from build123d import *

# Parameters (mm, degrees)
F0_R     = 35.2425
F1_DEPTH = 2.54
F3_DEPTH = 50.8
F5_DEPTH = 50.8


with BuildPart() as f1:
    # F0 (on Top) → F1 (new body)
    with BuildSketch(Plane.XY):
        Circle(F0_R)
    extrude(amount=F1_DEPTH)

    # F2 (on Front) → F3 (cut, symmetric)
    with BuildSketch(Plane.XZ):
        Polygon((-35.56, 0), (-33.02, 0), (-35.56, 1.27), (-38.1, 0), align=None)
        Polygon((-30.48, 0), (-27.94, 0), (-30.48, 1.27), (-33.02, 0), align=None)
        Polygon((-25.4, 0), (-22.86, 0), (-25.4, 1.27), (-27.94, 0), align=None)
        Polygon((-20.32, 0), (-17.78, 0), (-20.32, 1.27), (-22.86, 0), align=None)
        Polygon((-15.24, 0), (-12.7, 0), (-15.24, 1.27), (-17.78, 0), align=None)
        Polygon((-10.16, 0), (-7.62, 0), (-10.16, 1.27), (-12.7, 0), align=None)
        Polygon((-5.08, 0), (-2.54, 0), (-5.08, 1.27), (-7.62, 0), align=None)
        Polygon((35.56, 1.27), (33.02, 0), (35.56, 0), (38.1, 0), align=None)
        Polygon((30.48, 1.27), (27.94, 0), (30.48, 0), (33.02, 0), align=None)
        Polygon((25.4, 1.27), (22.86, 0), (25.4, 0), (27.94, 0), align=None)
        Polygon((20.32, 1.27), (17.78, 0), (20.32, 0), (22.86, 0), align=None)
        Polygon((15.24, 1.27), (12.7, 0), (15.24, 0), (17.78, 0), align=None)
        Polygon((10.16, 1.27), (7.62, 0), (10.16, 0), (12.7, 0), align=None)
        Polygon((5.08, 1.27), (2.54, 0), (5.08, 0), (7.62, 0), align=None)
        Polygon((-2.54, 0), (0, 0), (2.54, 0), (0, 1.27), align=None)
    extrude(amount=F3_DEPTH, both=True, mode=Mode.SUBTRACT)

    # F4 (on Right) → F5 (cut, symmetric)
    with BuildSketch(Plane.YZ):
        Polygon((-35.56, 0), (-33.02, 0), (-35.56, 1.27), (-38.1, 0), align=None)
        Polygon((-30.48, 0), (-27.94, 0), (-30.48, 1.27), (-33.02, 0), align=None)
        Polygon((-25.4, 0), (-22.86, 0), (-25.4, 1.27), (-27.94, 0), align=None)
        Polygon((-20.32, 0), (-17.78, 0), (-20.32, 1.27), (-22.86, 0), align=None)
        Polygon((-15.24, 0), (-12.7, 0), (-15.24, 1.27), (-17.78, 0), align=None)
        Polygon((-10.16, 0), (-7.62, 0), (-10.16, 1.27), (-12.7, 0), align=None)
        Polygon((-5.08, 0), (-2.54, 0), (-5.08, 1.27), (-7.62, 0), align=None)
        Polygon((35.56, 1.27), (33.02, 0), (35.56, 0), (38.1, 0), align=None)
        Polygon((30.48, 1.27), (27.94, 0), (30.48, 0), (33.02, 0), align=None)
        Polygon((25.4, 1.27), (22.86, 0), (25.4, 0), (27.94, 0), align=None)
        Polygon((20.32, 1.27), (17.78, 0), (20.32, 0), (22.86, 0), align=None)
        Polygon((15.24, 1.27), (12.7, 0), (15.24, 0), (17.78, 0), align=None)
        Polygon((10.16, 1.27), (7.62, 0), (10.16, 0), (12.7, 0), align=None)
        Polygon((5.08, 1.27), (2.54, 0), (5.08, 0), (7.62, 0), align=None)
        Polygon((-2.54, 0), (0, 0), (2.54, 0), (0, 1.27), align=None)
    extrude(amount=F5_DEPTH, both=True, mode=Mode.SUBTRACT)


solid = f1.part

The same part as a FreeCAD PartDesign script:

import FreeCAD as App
import Part
import Sketcher
from FreeCAD import Vector
Q = App.Units.Quantity

doc = App.newDocument("Part")
body = doc.addObject("PartDesign::Body", "Body")

sketch1 = body.newObject("Sketcher::SketchObject", "Sketch")
sketch1.AttachmentSupport = (doc.getObject("XY_Plane"), [""])
sketch1.MapMode = "FlatFace"
sketch1.addGeometry(Part.Circle(Vector(0, 0, 0), Vector(0, 0, 1), 35.2425), False)
sketch1.addConstraint([
    Sketcher.Constraint("Coincident", 0, 3, -1, 1),
    Sketcher.Constraint("Diameter", 0, Q("2.775 in")),
])
pad1 = body.newObject("PartDesign::Pad", "Pad")
pad1.Profile = sketch1
pad1.Length = Q("0.1 in")

sketch2 = body.newObject("Sketcher::SketchObject", "Sketch001")
sketch2.AttachmentSupport = (doc.getObject("XZ_Plane"), [""])
sketch2.MapMode = "FlatFace"
sketch2.addGeometry([
    Part.LineSegment(Vector(-33.02, 0, 0), Vector(-35.56, 1.27, 0)),
    Part.LineSegment(Vector(-35.56, 1.27, 0), Vector(-38.1, 0, 0)),
    Part.LineSegment(Vector(-38.1, 0, 0), Vector(-33.02, 0, 0)),
    Part.LineSegment(Vector(-27.94, 0, 0), Vector(-30.48, 1.27, 0)),
    Part.LineSegment(Vector(-30.48, 1.27, 0), Vector(-33.02, 0, 0)),
    Part.LineSegment(Vector(-33.02, 0, 0), Vector(-27.94, 0, 0)),
    Part.LineSegment(Vector(-22.86, 0, 0), Vector(-25.4, 1.27, 0)),
    Part.LineSegment(Vector(-25.4, 1.27, 0), Vector(-27.94, 0, 0)),
    Part.LineSegment(Vector(-27.94, 0, 0), Vector(-22.86, 0, 0)),
    Part.LineSegment(Vector(-17.78, 0, 0), Vector(-20.32, 1.27, 0)),
    Part.LineSegment(Vector(-20.32, 1.27, 0), Vector(-22.86, 0, 0)),
    Part.LineSegment(Vector(-22.86, 0, 0), Vector(-17.78, 0, 0)),
    Part.LineSegment(Vector(-12.7, 0, 0), Vector(-15.24, 1.27, 0)),
    Part.LineSegment(Vector(-15.24, 1.27, 0), Vector(-17.78, 0, 0)),
    Part.LineSegment(Vector(-17.78, 0, 0), Vector(-12.7, 0, 0)),
    Part.LineSegment(Vector(-7.62, 0, 0), Vector(-10.16, 1.27, 0)),
    Part.LineSegment(Vector(-10.16, 1.27, 0), Vector(-12.7, 0, 0)),
    Part.LineSegment(Vector(-12.7, 0, 0), Vector(-7.62, 0, 0)),
    Part.LineSegment(Vector(-2.54, 0, 0), Vector(-5.08, 1.27, 0)),
    Part.LineSegment(Vector(-5.08, 1.27, 0), Vector(-7.62, 0, 0)),
    Part.LineSegment(Vector(-7.62, 0, 0), Vector(-2.54, 0, 0)),
    Part.LineSegment(Vector(35.56, 1.27, 0), Vector(33.02, 0, 0)),
    Part.LineSegment(Vector(33.02, 0, 0), Vector(38.1, 0, 0)),
    Part.LineSegment(Vector(38.1, 0, 0), Vector(35.56, 1.27, 0)),
    Part.LineSegment(Vector(30.48, 1.27, 0), Vector(27.94, 0, 0)),
    Part.LineSegment(Vector(27.94, 0, 0), Vector(33.02, 0, 0)),
    Part.LineSegment(Vector(33.02, 0, 0), Vector(30.48, 1.27, 0)),
    Part.LineSegment(Vector(25.4, 1.27, 0), Vector(22.86, 0, 0)),
    Part.LineSegment(Vector(22.86, 0, 0), Vector(27.94, 0, 0)),
    Part.LineSegment(Vector(27.94, 0, 0), Vector(25.4, 1.27, 0)),
    Part.LineSegment(Vector(20.32, 1.27, 0), Vector(17.78, 0, 0)),
    Part.LineSegment(Vector(17.78, 0, 0), Vector(22.86, 0, 0)),
    Part.LineSegment(Vector(22.86, 0, 0), Vector(20.32, 1.27, 0)),
    Part.LineSegment(Vector(15.24, 1.27, 0), Vector(12.7, 0, 0)),
    Part.LineSegment(Vector(12.7, 0, 0), Vector(17.78, 0, 0)),
    Part.LineSegment(Vector(17.78, 0, 0), Vector(15.24, 1.27, 0)),
    Part.LineSegment(Vector(10.16, 1.27, 0), Vector(7.62, 0, 0)),
    Part.LineSegment(Vector(7.62, 0, 0), Vector(12.7, 0, 0)),
    Part.LineSegment(Vector(12.7, 0, 0), Vector(10.16, 1.27, 0)),
    Part.LineSegment(Vector(5.08, 1.27, 0), Vector(2.54, 0, 0)),
    Part.LineSegment(Vector(2.54, 0, 0), Vector(7.62, 0, 0)),
    Part.LineSegment(Vector(7.62, 0, 0), Vector(5.08, 1.27, 0)),
    Part.LineSegment(Vector(-2.54, 0, 0), Vector(2.54, 0, 0)),
    Part.LineSegment(Vector(2.54, 0, 0), Vector(0, 1.27, 0)),
    Part.LineSegment(Vector(0, 1.27, 0), Vector(-2.54, 0, 0)),
], False)
sketch2.addConstraint([
    Sketcher.Constraint("Coincident", 0, 2, 1, 1),
    Sketcher.Constraint("Coincident", 1, 2, 2, 1),
    Sketcher.Constraint("Coincident", 2, 2, 0, 1),
    Sketcher.Constraint("Coincident", 3, 2, 4, 1),
    Sketcher.Constraint("Coincident", 4, 2, 5, 1),
    Sketcher.Constraint("Coincident", 5, 2, 3, 1),
    Sketcher.Constraint("Coincident", 6, 2, 7, 1),
    Sketcher.Constraint("Coincident", 7, 2, 8, 1),
    Sketcher.Constraint("Coincident", 8, 2, 6, 1),
    Sketcher.Constraint("Coincident", 9, 2, 10, 1),
    Sketcher.Constraint("Coincident", 10, 2, 11, 1),
    Sketcher.Constraint("Coincident", 11, 2, 9, 1),
    Sketcher.Constraint("Coincident", 12, 2, 13, 1),
    Sketcher.Constraint("Coincident", 13, 2, 14, 1),
    Sketcher.Constraint("Coincident", 14, 2, 12, 1),
    Sketcher.Constraint("Coincident", 15, 2, 16, 1),
    Sketcher.Constraint("Coincident", 16, 2, 17, 1),
    Sketcher.Constraint("Coincident", 17, 2, 15, 1),
    Sketcher.Constraint("Coincident", 18, 2, 19, 1),
    Sketcher.Constraint("Coincident", 19, 2, 20, 1),
    Sketcher.Constraint("Coincident", 20, 2, 18, 1),
    Sketcher.Constraint("Coincident", 21, 2, 22, 1),
    Sketcher.Constraint("Coincident", 22, 2, 23, 1),
    Sketcher.Constraint("Coincident", 23, 2, 21, 1),
    Sketcher.Constraint("Coincident", 24, 2, 25, 1),
    Sketcher.Constraint("Coincident", 25, 2, 26, 1),
    Sketcher.Constraint("Coincident", 26, 2, 24, 1),
    Sketcher.Constraint("Coincident", 27, 2, 28, 1),
    Sketcher.Constraint("Coincident", 28, 2, 29, 1),
    Sketcher.Constraint("Coincident", 29, 2, 27, 1),
    Sketcher.Constraint("Coincident", 30, 2, 31, 1),
    Sketcher.Constraint("Coincident", 31, 2, 32, 1),
    Sketcher.Constraint("Coincident", 32, 2, 30, 1),
    Sketcher.Constraint("Coincident", 33, 2, 34, 1),
    Sketcher.Constraint("Coincident", 34, 2, 35, 1),
    Sketcher.Constraint("Coincident", 35, 2, 33, 1),
    Sketcher.Constraint("Coincident", 36, 2, 37, 1),
    Sketcher.Constraint("Coincident", 37, 2, 38, 1),
    Sketcher.Constraint("Coincident", 38, 2, 36, 1),
    Sketcher.Constraint("Coincident", 39, 2, 40, 1),
    Sketcher.Constraint("Coincident", 40, 2, 41, 1),
    Sketcher.Constraint("Coincident", 41, 2, 39, 1),
    Sketcher.Constraint("Coincident", 42, 2, 43, 1),
    Sketcher.Constraint("Coincident", 43, 2, 44, 1),
    Sketcher.Constraint("Coincident", 44, 2, 42, 1),
    Sketcher.Constraint("Horizontal", 2),
    Sketcher.Constraint("Horizontal", 5),
    Sketcher.Constraint("Horizontal", 8),
    Sketcher.Constraint("Horizontal", 11),
    Sketcher.Constraint("Horizontal", 14),
    Sketcher.Constraint("Horizontal", 17),
    Sketcher.Constraint("Horizontal", 20),
    Sketcher.Constraint("Horizontal", 22),
    Sketcher.Constraint("Horizontal", 25),
    Sketcher.Constraint("Horizontal", 28),
    Sketcher.Constraint("Horizontal", 31),
    Sketcher.Constraint("Horizontal", 34),
    Sketcher.Constraint("Horizontal", 37),
    Sketcher.Constraint("Horizontal", 40),
    Sketcher.Constraint("Horizontal", 42),
    Sketcher.Constraint("Coincident", 4, 2, 2, 2),
    Sketcher.Constraint("Coincident", 7, 2, 5, 2),
    Sketcher.Constraint("Coincident", 10, 2, 8, 2),
    Sketcher.Constraint("Coincident", 13, 2, 11, 2),
    Sketcher.Constraint("Coincident", 16, 2, 14, 2),
    Sketcher.Constraint("Coincident", 19, 2, 17, 2),
    Sketcher.Constraint("Coincident", 25, 2, 21, 2),
    Sketcher.Constraint("Coincident", 28, 2, 24, 2),
    Sketcher.Constraint("Coincident", 31, 2, 27, 2),
    Sketcher.Constraint("Coincident", 34, 2, 30, 2),
    Sketcher.Constraint("Coincident", 37, 2, 33, 2),
    Sketcher.Constraint("Coincident", 40, 2, 36, 2),
    Sketcher.Constraint("Coincident", 42, 2, 39, 2),
    Sketcher.Constraint("Coincident", 44, 2, 20, 2),
    Sketcher.Constraint("Symmetric", 2, 2, 21, 2, -1, 1),
    Sketcher.Constraint("Symmetric", 0, 2, 23, 2, -2),
    Sketcher.Constraint("Symmetric", 3, 2, 26, 2, -2),
    Sketcher.Constraint("Symmetric", 6, 2, 29, 2, -2),
    Sketcher.Constraint("Symmetric", 9, 2, 32, 2, -2),
    Sketcher.Constraint("Symmetric", 12, 2, 35, 2, -2),
    Sketcher.Constraint("Symmetric", 15, 2, 38, 2, -2),
    Sketcher.Constraint("Symmetric", 18, 2, 41, 2, -2),
    Sketcher.Constraint("PointOnObject", 43, 2, -2),
    Sketcher.Constraint("Parallel", 0, 3),
    Sketcher.Constraint("Parallel", 1, 4),
    Sketcher.Constraint("Parallel", 3, 6),
    Sketcher.Constraint("Parallel", 4, 7),
    Sketcher.Constraint("Parallel", 6, 9),
    Sketcher.Constraint("Parallel", 7, 10),
    Sketcher.Constraint("Parallel", 9, 12),
    Sketcher.Constraint("Parallel", 10, 13),
    Sketcher.Constraint("Parallel", 12, 15),
    Sketcher.Constraint("Parallel", 13, 16),
    Sketcher.Constraint("Parallel", 15, 18),
    Sketcher.Constraint("Parallel", 16, 19),
    Sketcher.Constraint("Parallel", 19, 21),
    Sketcher.Constraint("Parallel", 18, 23),
    Sketcher.Constraint("Parallel", 21, 24),
    Sketcher.Constraint("Parallel", 24, 27),
    Sketcher.Constraint("Parallel", 27, 30),
    Sketcher.Constraint("Parallel", 30, 33),
    Sketcher.Constraint("Parallel", 33, 36),
    Sketcher.Constraint("Parallel", 36, 39),
    Sketcher.Constraint("Parallel", 41, 43),
    Sketcher.Constraint("Horizontal", 0, 2, 3, 2),
    Sketcher.Constraint("Horizontal", 3, 2, 6, 2),
    Sketcher.Constraint("Horizontal", 6, 2, 9, 2),
    Sketcher.Constraint("Horizontal", 9, 2, 12, 2),
    Sketcher.Constraint("Horizontal", 12, 2, 15, 2),
    Sketcher.Constraint("Horizontal", 15, 2, 18, 2),
    Sketcher.Constraint("Horizontal", 41, 2, 43, 2),
    Sketcher.Constraint("DistanceX", 2, 1, 2, 2, Q("0.2 in")),
    Sketcher.Constraint("DistanceY", -1, 1, 0, 2, Q("0.05 in")),
])
pocket1 = body.newObject("PartDesign::Pocket", "Pocket")
pocket1.Profile = sketch2
pocket1.Length = Q("4 in")
pocket1.Midplane = True

sketch3 = body.newObject("Sketcher::SketchObject", "Sketch002")
sketch3.AttachmentSupport = (doc.getObject("YZ_Plane"), [""])
sketch3.MapMode = "FlatFace"
sketch3.addGeometry([
    Part.LineSegment(Vector(-33.02, 0, 0), Vector(-35.56, 1.27, 0)),
    Part.LineSegment(Vector(-35.56, 1.27, 0), Vector(-38.1, 0, 0)),
    Part.LineSegment(Vector(-38.1, 0, 0), Vector(-33.02, 0, 0)),
    Part.LineSegment(Vector(-27.94, 0, 0), Vector(-30.48, 1.27, 0)),
    Part.LineSegment(Vector(-30.48, 1.27, 0), Vector(-33.02, 0, 0)),
    Part.LineSegment(Vector(-33.02, 0, 0), Vector(-27.94, 0, 0)),
    Part.LineSegment(Vector(-22.86, 0, 0), Vector(-25.4, 1.27, 0)),
    Part.LineSegment(Vector(-25.4, 1.27, 0), Vector(-27.94, 0, 0)),
    Part.LineSegment(Vector(-27.94, 0, 0), Vector(-22.86, 0, 0)),
    Part.LineSegment(Vector(-17.78, 0, 0), Vector(-20.32, 1.27, 0)),
    Part.LineSegment(Vector(-20.32, 1.27, 0), Vector(-22.86, 0, 0)),
    Part.LineSegment(Vector(-22.86, 0, 0), Vector(-17.78, 0, 0)),
    Part.LineSegment(Vector(-12.7, 0, 0), Vector(-15.24, 1.27, 0)),
    Part.LineSegment(Vector(-15.24, 1.27, 0), Vector(-17.78, 0, 0)),
    Part.LineSegment(Vector(-17.78, 0, 0), Vector(-12.7, 0, 0)),
    Part.LineSegment(Vector(-7.62, 0, 0), Vector(-10.16, 1.27, 0)),
    Part.LineSegment(Vector(-10.16, 1.27, 0), Vector(-12.7, 0, 0)),
    Part.LineSegment(Vector(-12.7, 0, 0), Vector(-7.62, 0, 0)),
    Part.LineSegment(Vector(-2.54, 0, 0), Vector(-5.08, 1.27, 0)),
    Part.LineSegment(Vector(-5.08, 1.27, 0), Vector(-7.62, 0, 0)),
    Part.LineSegment(Vector(-7.62, 0, 0), Vector(-2.54, 0, 0)),
    Part.LineSegment(Vector(35.56, 1.27, 0), Vector(33.02, 0, 0)),
    Part.LineSegment(Vector(33.02, 0, 0), Vector(38.1, 0, 0)),
    Part.LineSegment(Vector(38.1, 0, 0), Vector(35.56, 1.27, 0)),
    Part.LineSegment(Vector(30.48, 1.27, 0), Vector(27.94, 0, 0)),
    Part.LineSegment(Vector(27.94, 0, 0), Vector(33.02, 0, 0)),
    Part.LineSegment(Vector(33.02, 0, 0), Vector(30.48, 1.27, 0)),
    Part.LineSegment(Vector(25.4, 1.27, 0), Vector(22.86, 0, 0)),
    Part.LineSegment(Vector(22.86, 0, 0), Vector(27.94, 0, 0)),
    Part.LineSegment(Vector(27.94, 0, 0), Vector(25.4, 1.27, 0)),
    Part.LineSegment(Vector(20.32, 1.27, 0), Vector(17.78, 0, 0)),
    Part.LineSegment(Vector(17.78, 0, 0), Vector(22.86, 0, 0)),
    Part.LineSegment(Vector(22.86, 0, 0), Vector(20.32, 1.27, 0)),
    Part.LineSegment(Vector(15.24, 1.27, 0), Vector(12.7, 0, 0)),
    Part.LineSegment(Vector(12.7, 0, 0), Vector(17.78, 0, 0)),
    Part.LineSegment(Vector(17.78, 0, 0), Vector(15.24, 1.27, 0)),
    Part.LineSegment(Vector(10.16, 1.27, 0), Vector(7.62, 0, 0)),
    Part.LineSegment(Vector(7.62, 0, 0), Vector(12.7, 0, 0)),
    Part.LineSegment(Vector(12.7, 0, 0), Vector(10.16, 1.27, 0)),
    Part.LineSegment(Vector(5.08, 1.27, 0), Vector(2.54, 0, 0)),
    Part.LineSegment(Vector(2.54, 0, 0), Vector(7.62, 0, 0)),
    Part.LineSegment(Vector(7.62, 0, 0), Vector(5.08, 1.27, 0)),
    Part.LineSegment(Vector(-2.54, 0, 0), Vector(2.54, 0, 0)),
    Part.LineSegment(Vector(2.54, 0, 0), Vector(0, 1.27, 0)),
    Part.LineSegment(Vector(0, 1.27, 0), Vector(-2.54, 0, 0)),
], False)
sketch3.addConstraint([
    Sketcher.Constraint("Coincident", 0, 2, 1, 1),
    Sketcher.Constraint("Coincident", 1, 2, 2, 1),
    Sketcher.Constraint("Coincident", 2, 2, 0, 1),
    Sketcher.Constraint("Coincident", 3, 2, 4, 1),
    Sketcher.Constraint("Coincident", 4, 2, 5, 1),
    Sketcher.Constraint("Coincident", 5, 2, 3, 1),
    Sketcher.Constraint("Coincident", 6, 2, 7, 1),
    Sketcher.Constraint("Coincident", 7, 2, 8, 1),
    Sketcher.Constraint("Coincident", 8, 2, 6, 1),
    Sketcher.Constraint("Coincident", 9, 2, 10, 1),
    Sketcher.Constraint("Coincident", 10, 2, 11, 1),
    Sketcher.Constraint("Coincident", 11, 2, 9, 1),
    Sketcher.Constraint("Coincident", 12, 2, 13, 1),
    Sketcher.Constraint("Coincident", 13, 2, 14, 1),
    Sketcher.Constraint("Coincident", 14, 2, 12, 1),
    Sketcher.Constraint("Coincident", 15, 2, 16, 1),
    Sketcher.Constraint("Coincident", 16, 2, 17, 1),
    Sketcher.Constraint("Coincident", 17, 2, 15, 1),
    Sketcher.Constraint("Coincident", 18, 2, 19, 1),
    Sketcher.Constraint("Coincident", 19, 2, 20, 1),
    Sketcher.Constraint("Coincident", 20, 2, 18, 1),
    Sketcher.Constraint("Coincident", 21, 2, 22, 1),
    Sketcher.Constraint("Coincident", 22, 2, 23, 1),
    Sketcher.Constraint("Coincident", 23, 2, 21, 1),
    Sketcher.Constraint("Coincident", 24, 2, 25, 1),
    Sketcher.Constraint("Coincident", 25, 2, 26, 1),
    Sketcher.Constraint("Coincident", 26, 2, 24, 1),
    Sketcher.Constraint("Coincident", 27, 2, 28, 1),
    Sketcher.Constraint("Coincident", 28, 2, 29, 1),
    Sketcher.Constraint("Coincident", 29, 2, 27, 1),
    Sketcher.Constraint("Coincident", 30, 2, 31, 1),
    Sketcher.Constraint("Coincident", 31, 2, 32, 1),
    Sketcher.Constraint("Coincident", 32, 2, 30, 1),
    Sketcher.Constraint("Coincident", 33, 2, 34, 1),
    Sketcher.Constraint("Coincident", 34, 2, 35, 1),
    Sketcher.Constraint("Coincident", 35, 2, 33, 1),
    Sketcher.Constraint("Coincident", 36, 2, 37, 1),
    Sketcher.Constraint("Coincident", 37, 2, 38, 1),
    Sketcher.Constraint("Coincident", 38, 2, 36, 1),
    Sketcher.Constraint("Coincident", 39, 2, 40, 1),
    Sketcher.Constraint("Coincident", 40, 2, 41, 1),
    Sketcher.Constraint("Coincident", 41, 2, 39, 1),
    Sketcher.Constraint("Coincident", 42, 2, 43, 1),
    Sketcher.Constraint("Coincident", 43, 2, 44, 1),
    Sketcher.Constraint("Coincident", 44, 2, 42, 1),
    Sketcher.Constraint("Horizontal", 2),
    Sketcher.Constraint("Horizontal", 5),
    Sketcher.Constraint("Horizontal", 8),
    Sketcher.Constraint("Horizontal", 11),
    Sketcher.Constraint("Horizontal", 14),
    Sketcher.Constraint("Horizontal", 17),
    Sketcher.Constraint("Horizontal", 20),
    Sketcher.Constraint("Horizontal", 22),
    Sketcher.Constraint("Horizontal", 25),
    Sketcher.Constraint("Horizontal", 28),
    Sketcher.Constraint("Horizontal", 31),
    Sketcher.Constraint("Horizontal", 34),
    Sketcher.Constraint("Horizontal", 37),
    Sketcher.Constraint("Horizontal", 40),
    Sketcher.Constraint("Horizontal", 42),
    Sketcher.Constraint("Coincident", 4, 2, 2, 2),
    Sketcher.Constraint("Coincident", 7, 2, 5, 2),
    Sketcher.Constraint("Coincident", 10, 2, 8, 2),
    Sketcher.Constraint("Coincident", 13, 2, 11, 2),
    Sketcher.Constraint("Coincident", 16, 2, 14, 2),
    Sketcher.Constraint("Coincident", 19, 2, 17, 2),
    Sketcher.Constraint("Coincident", 25, 2, 21, 2),
    Sketcher.Constraint("Coincident", 28, 2, 24, 2),
    Sketcher.Constraint("Coincident", 31, 2, 27, 2),
    Sketcher.Constraint("Coincident", 34, 2, 30, 2),
    Sketcher.Constraint("Coincident", 37, 2, 33, 2),
    Sketcher.Constraint("Coincident", 40, 2, 36, 2),
    Sketcher.Constraint("Coincident", 42, 2, 39, 2),
    Sketcher.Constraint("Coincident", 44, 2, 20, 2),
    Sketcher.Constraint("Symmetric", 2, 2, 21, 2, -1, 1),
    Sketcher.Constraint("Symmetric", 0, 2, 23, 2, -2),
    Sketcher.Constraint("Symmetric", 3, 2, 26, 2, -2),
    Sketcher.Constraint("Symmetric", 6, 2, 29, 2, -2),
    Sketcher.Constraint("Symmetric", 9, 2, 32, 2, -2),
    Sketcher.Constraint("Symmetric", 12, 2, 35, 2, -2),
    Sketcher.Constraint("Symmetric", 15, 2, 38, 2, -2),
    Sketcher.Constraint("Symmetric", 18, 2, 41, 2, -2),
    Sketcher.Constraint("PointOnObject", 43, 2, -2),
    Sketcher.Constraint("Parallel", 0, 3),
    Sketcher.Constraint("Parallel", 1, 4),
    Sketcher.Constraint("Parallel", 3, 6),
    Sketcher.Constraint("Parallel", 4, 7),
    Sketcher.Constraint("Parallel", 6, 9),
    Sketcher.Constraint("Parallel", 7, 10),
    Sketcher.Constraint("Parallel", 9, 12),
    Sketcher.Constraint("Parallel", 10, 13),
    Sketcher.Constraint("Parallel", 12, 15),
    Sketcher.Constraint("Parallel", 13, 16),
    Sketcher.Constraint("Parallel", 15, 18),
    Sketcher.Constraint("Parallel", 16, 19),
    Sketcher.Constraint("Parallel", 19, 21),
    Sketcher.Constraint("Parallel", 18, 23),
    Sketcher.Constraint("Parallel", 21, 24),
    Sketcher.Constraint("Parallel", 24, 27),
    Sketcher.Constraint("Parallel", 27, 30),
    Sketcher.Constraint("Parallel", 30, 33),
    Sketcher.Constraint("Parallel", 33, 36),
    Sketcher.Constraint("Parallel", 36, 39),
    Sketcher.Constraint("Parallel", 41, 43),
    Sketcher.Constraint("Horizontal", 0, 2, 3, 2),
    Sketcher.Constraint("Horizontal", 3, 2, 6, 2),
    Sketcher.Constraint("Horizontal", 6, 2, 9, 2),
    Sketcher.Constraint("Horizontal", 9, 2, 12, 2),
    Sketcher.Constraint("Horizontal", 12, 2, 15, 2),
    Sketcher.Constraint("Horizontal", 15, 2, 18, 2),
    Sketcher.Constraint("Horizontal", 41, 2, 43, 2),
    Sketcher.Constraint("DistanceX", 2, 1, 2, 2, Q("0.2 in")),
    Sketcher.Constraint("DistanceY", -1, 1, 0, 2, Q("0.05 in")),
])
pocket2 = body.newObject("PartDesign::Pocket", "Pocket001")
pocket2.Profile = sketch3
pocket2.Length = Q("4 in")
pocket2.Midplane = True

doc.recompute()
